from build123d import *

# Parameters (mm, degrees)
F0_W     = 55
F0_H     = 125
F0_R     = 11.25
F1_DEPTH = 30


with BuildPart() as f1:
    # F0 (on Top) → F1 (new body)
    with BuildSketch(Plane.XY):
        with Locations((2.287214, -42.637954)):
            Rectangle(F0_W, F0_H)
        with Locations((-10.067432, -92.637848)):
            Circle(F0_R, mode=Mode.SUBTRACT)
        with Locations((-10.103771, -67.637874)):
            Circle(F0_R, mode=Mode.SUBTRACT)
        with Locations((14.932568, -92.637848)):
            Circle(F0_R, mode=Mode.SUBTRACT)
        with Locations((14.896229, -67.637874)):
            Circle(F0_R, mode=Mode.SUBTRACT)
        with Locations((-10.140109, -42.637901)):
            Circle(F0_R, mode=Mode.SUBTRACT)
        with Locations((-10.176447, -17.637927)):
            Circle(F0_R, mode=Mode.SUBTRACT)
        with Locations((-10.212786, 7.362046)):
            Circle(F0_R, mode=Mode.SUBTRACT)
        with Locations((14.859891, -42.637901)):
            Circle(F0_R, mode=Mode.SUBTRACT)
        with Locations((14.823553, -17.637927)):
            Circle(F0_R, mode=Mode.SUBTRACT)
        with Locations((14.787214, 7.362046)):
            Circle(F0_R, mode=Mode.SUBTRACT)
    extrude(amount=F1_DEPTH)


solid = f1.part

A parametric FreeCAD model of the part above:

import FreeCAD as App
import Part
import Sketcher
from FreeCAD import Vector


def add_polygon(sketch, points):
    """Adds a closed chain of lines whose ends are joined by coincident constraints."""
    first, n = sketch.GeometryCount, len(points)
    for a, b in zip(points, points[1:] + points[:1]):
        sketch.addGeometry(Part.LineSegment(App.Vector(*a, 0), App.Vector(*b, 0)), False)
    for i in range(n):
        sketch.addConstraint(Sketcher.Constraint("Coincident", first + i, 2, first + (i + 1) % n, 1))

doc = App.newDocument("Part")
params = doc.addObject("Spreadsheet::Sheet", "Params")
for row, (alias, value) in enumerate([
    ("sketch1_diameter", "22.5 mm"),
    ("sketch1_width", "55 mm"),
    ("sketch1_height", "125 mm"),
    ("pad1_length", "30 mm"),
], start=1):
    params.set(f"A{row}", alias)
    params.set(f"B{row}", "=" + value)
    params.setAlias(f"B{row}", alias)

body = doc.addObject("PartDesign::Body", "Body")

# Sketch on XY plane
sketch1 = doc.addObject("Sketcher::SketchObject", "Sketch")
body.addObject(sketch1)
sketch1.AttachmentSupport = (doc.XY_Plane, [""])
sketch1.MapMode = "FlatFace"
add_polygon(sketch1, [(-25, 20), (-25, -105), (30, -105), (30, 20)])  # lines 0-3
sketch1.addGeometry(Part.Circle(Vector(-10, -93, 0), Vector(0, 0, 1), 11), False)  # 4
sketch1.addGeometry(Part.Circle(Vector(-10, -68, 0), Vector(0, 0, 1), 11), False)  # 5
sketch1.addGeometry(Part.Circle(Vector(15, -93, 0), Vector(0, 0, 1), 11), False)  # 6
sketch1.addGeometry(Part.Circle(Vector(15, -68, 0), Vector(0, 0, 1), 11), False)  # 7
sketch1.addGeometry(Part.Circle(Vector(-10, -43, 0), Vector(0, 0, 1), 11), False)  # 8
sketch1.addGeometry(Part.Circle(Vector(-10, -18, 0), Vector(0, 0, 1), 11), False)  # 9
sketch1.addGeometry(Part.Circle(Vector(-10, 7, 0), Vector(0, 0, 1), 11), False)  # 10
sketch1.addGeometry(Part.Circle(Vector(15, -43, 0), Vector(0, 0, 1), 11), False)  # 11
sketch1.addGeometry(Part.Circle(Vector(15, -18, 0), Vector(0, 0, 1), 11), False)  # 12
sketch1.addGeometry(Part.Circle(Vector(15, 7, 0), Vector(0, 0, 1), 11), False)  # 13
sketch1.addConstraint([
    Sketcher.Constraint("Vertical", 0),
    Sketcher.Constraint("Horizontal", 1),
    Sketcher.Constraint("Vertical", 2),
    Sketcher.Constraint("Horizontal", 3),
    Sketcher.Constraint("Equal", 4, 5),
    Sketcher.Constraint("Equal", 5, 6),
    Sketcher.Constraint("Equal", 6, 7),
    Sketcher.Constraint("Equal", 7, 8),
    Sketcher.Constraint("Equal", 8, 9),
    Sketcher.Constraint("Equal", 9, 10),
    Sketcher.Constraint("Equal", 10, 11),
    Sketcher.Constraint("Equal", 11, 12),
    Sketcher.Constraint("Equal", 12, 13),
    Sketcher.Constraint("Horizontal", 4, 3, 6, 3),
    Sketcher.Constraint("Horizontal", 5, 3, 7, 3),
    Sketcher.Constraint("Horizontal", 8, 3, 11, 3),
    Sketcher.Constraint("Horizontal", 9, 3, 12, 3),
    Sketcher.Constraint("Horizontal", 10, 3, 13, 3),
    Sketcher.Constraint("Diameter", 4, 22.5),
    Sketcher.Constraint("DistanceX", 1, 1, 1, 2, 55.0),
    Sketcher.Constraint("DistanceY", 0, 2, 0, 1, 125.0),
    Sketcher.Constraint("DistanceX", 4, 3, 6, 3, 25.0),
    Sketcher.Constraint("DistanceX", 5, 3, 7, 3, 25.0),
    Sketcher.Constraint("DistanceX", 8, 3, 11, 3, 25.0),
    Sketcher.Constraint("DistanceX", 9, 3, 12, 3, 25.0),
    Sketcher.Constraint("DistanceX", 10, 3, 13, 3, 25.0),
    Sketcher.Constraint("DistanceX", 13, 3, 2, 2, 15.0),
    Sketcher.Constraint("DistanceY", 13, 3, 2, 2, 12.5),
    Sketcher.Constraint("DistanceY", 8, 3, -1, 1, 42.637901),
    Sketcher.Constraint("DistanceY", 4, 3, -1, 1, 92.637848),
    Sketcher.Constraint("DistanceX", 5, 3, -1, 1, 10.103771),
    Sketcher.Constraint("DistanceX", 8, 3, -1, 1, 10.140109),
    Sketcher.Constraint("DistanceX", 5, 3, 4, 3, 0.036339),
    Sketcher.Constraint("DistanceY", 4, 3, 9, 3, 74.999921),
    Sketcher.Constraint("DistanceX", 10, 3, 9, 3, 0.036339),
    Sketcher.Constraint("DistanceY", 5, 3, 10, 3, 74.99992),
    Sketcher.Constraint("DistanceX", 9, 3, 11, 3, 25.036338),
    Sketcher.Constraint("DistanceY", 5, 3, -1, 1, 67.637874),
])
sketch1.setExpression("Constraints[22]", "Params.sketch1_diameter")
sketch1.setExpression("Constraints[23]", "Params.sketch1_width")
sketch1.setExpression("Constraints[24]", "Params.sketch1_height")
pad1 = doc.addObject("PartDesign::Pad", "Pad")
body.addObject(pad1)
pad1.Profile = sketch1
pad1.setExpression("Length", "Params.pad1_length")

doc.recompute()
